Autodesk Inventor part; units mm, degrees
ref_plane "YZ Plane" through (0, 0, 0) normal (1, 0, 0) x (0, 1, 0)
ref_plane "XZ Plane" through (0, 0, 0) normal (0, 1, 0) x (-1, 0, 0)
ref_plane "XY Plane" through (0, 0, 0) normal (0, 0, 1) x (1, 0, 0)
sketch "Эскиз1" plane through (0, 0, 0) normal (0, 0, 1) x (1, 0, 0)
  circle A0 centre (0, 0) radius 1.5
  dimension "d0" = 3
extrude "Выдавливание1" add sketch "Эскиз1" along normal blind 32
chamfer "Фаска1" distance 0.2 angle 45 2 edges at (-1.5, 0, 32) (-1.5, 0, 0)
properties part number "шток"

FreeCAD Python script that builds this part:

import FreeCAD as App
import Part
import Sketcher

V = App.Vector
Q = App.Units.Quantity


def edges_at(feature, points):
    """Names of the edges that pass closest to the given points."""
    edges = feature.Shape.Edges
    near = lambda p: min(range(len(edges)), key=lambda i: edges[i].distToShape(Part.Vertex(*p))[0])
    return sorted({f"Edge{near(p) + 1}" for p in points})

doc = App.newDocument("Part")
body = doc.addObject("PartDesign::Body", "Body")

sketch1 = doc.addObject("Sketcher::SketchObject", "Sketch")
body.addObject(sketch1)
sketch1.AttachmentSupport = (doc.XY_Plane, [""])
sketch1.MapMode = "FlatFace"
sketch1.addGeometry(Part.Circle(V(0, 0, 0), V(0, 0, 1), 1.5), False)
sketch1.addConstraint([
    Sketcher.Constraint("Coincident", 0, 3, -1, 1),
    Sketcher.Constraint("Diameter", 0, Q("3 mm")),
])
pad1 = doc.addObject("PartDesign::Pad", "Pad")
body.addObject(pad1)
pad1.Profile = sketch1
pad1.Length = 32
doc.recompute()

chamfer = doc.addObject("PartDesign::Chamfer", "Chamfer")
body.addObject(chamfer)
chamfer.Base = (pad1, edges_at(pad1, [(-1.5, 0, 32), (-1.5, 0, 0)]))
chamfer.Size = 0.2

doc.recompute()
